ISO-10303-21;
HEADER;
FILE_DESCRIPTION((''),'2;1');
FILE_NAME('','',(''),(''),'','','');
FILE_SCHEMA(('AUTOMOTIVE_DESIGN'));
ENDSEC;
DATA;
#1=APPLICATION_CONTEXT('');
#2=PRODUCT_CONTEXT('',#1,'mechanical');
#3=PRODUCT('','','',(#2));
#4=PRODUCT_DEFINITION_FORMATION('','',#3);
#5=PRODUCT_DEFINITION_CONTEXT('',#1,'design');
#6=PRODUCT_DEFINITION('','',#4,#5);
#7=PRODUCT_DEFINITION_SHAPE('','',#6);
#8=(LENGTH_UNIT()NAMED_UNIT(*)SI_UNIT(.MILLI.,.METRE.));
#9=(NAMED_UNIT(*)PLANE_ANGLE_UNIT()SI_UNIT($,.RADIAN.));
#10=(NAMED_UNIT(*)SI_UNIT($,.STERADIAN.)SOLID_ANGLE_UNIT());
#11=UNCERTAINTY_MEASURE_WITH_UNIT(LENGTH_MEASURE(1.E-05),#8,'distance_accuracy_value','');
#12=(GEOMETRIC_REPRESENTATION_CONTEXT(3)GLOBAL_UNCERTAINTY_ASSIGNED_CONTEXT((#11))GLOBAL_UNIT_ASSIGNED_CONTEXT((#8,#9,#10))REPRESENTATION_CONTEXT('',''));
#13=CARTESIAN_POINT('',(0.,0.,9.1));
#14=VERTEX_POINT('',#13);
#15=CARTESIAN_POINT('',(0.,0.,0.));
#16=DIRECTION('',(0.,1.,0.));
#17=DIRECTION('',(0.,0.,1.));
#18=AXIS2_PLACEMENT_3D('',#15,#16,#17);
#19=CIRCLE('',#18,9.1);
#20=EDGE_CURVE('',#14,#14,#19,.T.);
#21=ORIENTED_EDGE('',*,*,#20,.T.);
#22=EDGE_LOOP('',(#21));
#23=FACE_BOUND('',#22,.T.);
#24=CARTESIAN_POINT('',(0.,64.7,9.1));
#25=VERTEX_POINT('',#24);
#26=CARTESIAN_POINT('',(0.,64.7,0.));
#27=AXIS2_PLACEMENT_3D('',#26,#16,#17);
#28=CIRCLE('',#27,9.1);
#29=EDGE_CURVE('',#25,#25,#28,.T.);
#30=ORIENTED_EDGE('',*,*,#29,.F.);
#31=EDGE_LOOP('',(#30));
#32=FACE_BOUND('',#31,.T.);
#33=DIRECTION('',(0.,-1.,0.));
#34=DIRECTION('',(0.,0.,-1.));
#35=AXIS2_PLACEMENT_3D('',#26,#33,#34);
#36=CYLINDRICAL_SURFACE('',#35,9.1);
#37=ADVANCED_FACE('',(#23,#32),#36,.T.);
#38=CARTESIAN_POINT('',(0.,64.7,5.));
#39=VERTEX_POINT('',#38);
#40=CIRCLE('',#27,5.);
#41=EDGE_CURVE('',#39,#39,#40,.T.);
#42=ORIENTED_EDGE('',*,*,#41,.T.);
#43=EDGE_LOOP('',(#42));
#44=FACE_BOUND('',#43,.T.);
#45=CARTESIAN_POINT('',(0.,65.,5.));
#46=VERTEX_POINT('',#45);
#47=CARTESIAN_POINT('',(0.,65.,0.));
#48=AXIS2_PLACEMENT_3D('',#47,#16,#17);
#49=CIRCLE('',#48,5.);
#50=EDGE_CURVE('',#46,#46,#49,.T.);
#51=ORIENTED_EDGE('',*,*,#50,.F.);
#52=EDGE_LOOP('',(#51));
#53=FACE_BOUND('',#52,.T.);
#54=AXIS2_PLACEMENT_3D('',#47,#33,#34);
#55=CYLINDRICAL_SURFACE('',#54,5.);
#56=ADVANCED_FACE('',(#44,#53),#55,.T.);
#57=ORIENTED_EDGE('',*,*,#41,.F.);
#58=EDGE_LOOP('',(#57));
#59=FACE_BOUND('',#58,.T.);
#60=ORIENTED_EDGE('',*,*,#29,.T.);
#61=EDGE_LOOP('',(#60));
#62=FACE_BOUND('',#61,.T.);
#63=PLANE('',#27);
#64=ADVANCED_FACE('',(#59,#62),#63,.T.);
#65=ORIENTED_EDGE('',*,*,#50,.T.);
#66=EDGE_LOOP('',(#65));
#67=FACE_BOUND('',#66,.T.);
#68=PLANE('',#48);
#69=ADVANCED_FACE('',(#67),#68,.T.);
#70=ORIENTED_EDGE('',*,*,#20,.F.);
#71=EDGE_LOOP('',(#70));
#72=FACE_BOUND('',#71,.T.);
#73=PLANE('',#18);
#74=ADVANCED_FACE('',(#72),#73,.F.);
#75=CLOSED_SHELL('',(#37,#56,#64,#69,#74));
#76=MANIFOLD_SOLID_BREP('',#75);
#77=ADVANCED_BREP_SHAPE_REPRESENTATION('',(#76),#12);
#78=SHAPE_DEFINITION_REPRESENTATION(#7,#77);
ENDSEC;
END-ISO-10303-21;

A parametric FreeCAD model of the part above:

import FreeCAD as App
import Part
import Sketcher
from FreeCAD import Vector
Q = App.Units.Quantity

doc = App.newDocument("Part")
body = doc.addObject("PartDesign::Body", "Body")

sketch1 = body.newObject("Sketcher::SketchObject", "Sketch")
sketch1.AttachmentSupport = (doc.getObject("XZ_Plane"), [""])
sketch1.MapMode = "FlatFace"
sketch1.addGeometry(Part.Circle(Vector(0, 0, 0), Vector(0, 0, 1), 9), False)
sketch1.addConstraint(Sketcher.Constraint("Coincident", 0, 3, -1, 1))
sketch1.addConstraint(Sketcher.Constraint("Diameter", 0, Q("18.2 mm")))
pad1 = body.newObject("PartDesign::Pad", "Pad")
pad1.Profile = sketch1
pad1.Length = 64.7
pad1.Reversed = True

sketch2 = body.newObject("Sketcher::SketchObject", "Sketch001")
sketch2.AttachmentSupport = (doc.getObject("XZ_Plane"), [""])
sketch2.MapMode = "FlatFace"
sketch2.AttachmentOffset = App.Placement(Vector(0, 0, -64.7), App.Rotation())
sketch2.addGeometry(Part.Circle(Vector(0, 0, 0), Vector(0, 0, 1), 5), False)
sketch2.addConstraint(Sketcher.Constraint("Coincident", 0, 3, -1, 1))
sketch2.addConstraint(Sketcher.Constraint("Diameter", 0, Q("10 mm")))
pad2 = body.newObject("PartDesign::Pad", "Pad001")
pad2.Profile = sketch2
pad2.Length = 0.3
pad2.Reversed = True

doc.recompute()
